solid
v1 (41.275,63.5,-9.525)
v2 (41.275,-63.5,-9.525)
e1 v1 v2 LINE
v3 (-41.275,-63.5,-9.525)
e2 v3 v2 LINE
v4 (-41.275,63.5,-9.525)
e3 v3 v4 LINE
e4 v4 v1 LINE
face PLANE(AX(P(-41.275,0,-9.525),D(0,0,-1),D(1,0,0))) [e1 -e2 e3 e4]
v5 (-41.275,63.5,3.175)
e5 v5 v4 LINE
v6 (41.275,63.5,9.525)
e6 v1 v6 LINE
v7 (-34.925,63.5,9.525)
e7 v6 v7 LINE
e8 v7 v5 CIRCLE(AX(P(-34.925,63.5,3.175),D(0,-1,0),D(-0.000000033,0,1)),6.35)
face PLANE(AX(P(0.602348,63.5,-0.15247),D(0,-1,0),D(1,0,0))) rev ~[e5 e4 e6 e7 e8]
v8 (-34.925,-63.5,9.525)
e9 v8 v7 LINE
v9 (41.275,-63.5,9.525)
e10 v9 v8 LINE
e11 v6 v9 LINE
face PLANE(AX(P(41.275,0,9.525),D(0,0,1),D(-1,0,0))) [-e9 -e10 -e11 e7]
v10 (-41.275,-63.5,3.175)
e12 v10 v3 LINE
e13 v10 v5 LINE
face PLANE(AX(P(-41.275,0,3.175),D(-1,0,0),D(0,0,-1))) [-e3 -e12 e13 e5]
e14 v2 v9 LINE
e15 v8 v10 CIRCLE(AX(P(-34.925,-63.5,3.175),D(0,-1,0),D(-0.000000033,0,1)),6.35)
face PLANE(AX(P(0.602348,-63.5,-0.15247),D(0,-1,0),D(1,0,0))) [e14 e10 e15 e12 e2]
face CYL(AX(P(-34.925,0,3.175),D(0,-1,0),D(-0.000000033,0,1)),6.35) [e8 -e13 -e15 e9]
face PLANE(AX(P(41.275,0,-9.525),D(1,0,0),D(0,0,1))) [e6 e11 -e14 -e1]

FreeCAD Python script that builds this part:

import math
import FreeCAD as App
import Part
import Sketcher

V = App.Vector
Q = App.Units.Quantity

doc = App.newDocument("Part")
body = doc.addObject("PartDesign::Body", "Body")

sketch1 = body.newObject("Sketcher::SketchObject", "Sketch")
sketch1.AttachmentSupport = (doc.getObject("XZ_Plane"), [""])
sketch1.MapMode = "FlatFace"
sketch1.addGeometry(Part.LineSegment(V(-41.275, -9.525, 0), V(41.275, -9.525, 0)), False)
sketch1.addGeometry(Part.LineSegment(V(41.275, -9.525, 0), V(41.275, 9.525, 0)), False)
sketch1.addGeometry(Part.LineSegment(V(41.275, 9.525, 0), V(-34.925, 9.525, 0)), False)
sketch1.addGeometry(Part.ArcOfCircle(Part.Circle(V(-34.925, 3.175, 0), V(0, 0, 1), 6.35), math.radians(90.000002), math.radians(179.999998)), False)
sketch1.addGeometry(Part.LineSegment(V(-41.275, 3.175, 0), V(-41.275, -9.525, 0)), False)
sketch1.addConstraint(Sketcher.Constraint("Coincident", 0, 2, 1, 1))
sketch1.addConstraint(Sketcher.Constraint("Coincident", 1, 2, 2, 1))
sketch1.addConstraint(Sketcher.Constraint("Tangent", 2, 2, 3, 1))
sketch1.addConstraint(Sketcher.Constraint("Tangent", 3, 2, 4, 1))
sketch1.addConstraint(Sketcher.Constraint("Coincident", 4, 2, 0, 1))
sketch1.addConstraint(Sketcher.Constraint("Horizontal", 0))
sketch1.addConstraint(Sketcher.Constraint("Vertical", 1))
sketch1.addConstraint(Sketcher.Constraint("Horizontal", 2))
sketch1.addConstraint(Sketcher.Constraint("Vertical", 4))
sketch1.addConstraint(Sketcher.Constraint("Symmetric", 1, 2, 4, 2, -1, 1))
sketch1.addConstraint(Sketcher.Constraint("DistanceX", 2, 2, 2, 1, Q("3 in")))
sketch1.addConstraint(Sketcher.Constraint("Radius", 3, Q("0.25 in")))
sketch1.addConstraint(Sketcher.Constraint("DistanceY", 4, 2, 4, 1, Q("0.5 in")))
pad1 = body.newObject("PartDesign::Pad", "Pad")
pad1.Profile = sketch1
pad1.Length = Q("5 in")
pad1.Midplane = True

doc.recompute()
